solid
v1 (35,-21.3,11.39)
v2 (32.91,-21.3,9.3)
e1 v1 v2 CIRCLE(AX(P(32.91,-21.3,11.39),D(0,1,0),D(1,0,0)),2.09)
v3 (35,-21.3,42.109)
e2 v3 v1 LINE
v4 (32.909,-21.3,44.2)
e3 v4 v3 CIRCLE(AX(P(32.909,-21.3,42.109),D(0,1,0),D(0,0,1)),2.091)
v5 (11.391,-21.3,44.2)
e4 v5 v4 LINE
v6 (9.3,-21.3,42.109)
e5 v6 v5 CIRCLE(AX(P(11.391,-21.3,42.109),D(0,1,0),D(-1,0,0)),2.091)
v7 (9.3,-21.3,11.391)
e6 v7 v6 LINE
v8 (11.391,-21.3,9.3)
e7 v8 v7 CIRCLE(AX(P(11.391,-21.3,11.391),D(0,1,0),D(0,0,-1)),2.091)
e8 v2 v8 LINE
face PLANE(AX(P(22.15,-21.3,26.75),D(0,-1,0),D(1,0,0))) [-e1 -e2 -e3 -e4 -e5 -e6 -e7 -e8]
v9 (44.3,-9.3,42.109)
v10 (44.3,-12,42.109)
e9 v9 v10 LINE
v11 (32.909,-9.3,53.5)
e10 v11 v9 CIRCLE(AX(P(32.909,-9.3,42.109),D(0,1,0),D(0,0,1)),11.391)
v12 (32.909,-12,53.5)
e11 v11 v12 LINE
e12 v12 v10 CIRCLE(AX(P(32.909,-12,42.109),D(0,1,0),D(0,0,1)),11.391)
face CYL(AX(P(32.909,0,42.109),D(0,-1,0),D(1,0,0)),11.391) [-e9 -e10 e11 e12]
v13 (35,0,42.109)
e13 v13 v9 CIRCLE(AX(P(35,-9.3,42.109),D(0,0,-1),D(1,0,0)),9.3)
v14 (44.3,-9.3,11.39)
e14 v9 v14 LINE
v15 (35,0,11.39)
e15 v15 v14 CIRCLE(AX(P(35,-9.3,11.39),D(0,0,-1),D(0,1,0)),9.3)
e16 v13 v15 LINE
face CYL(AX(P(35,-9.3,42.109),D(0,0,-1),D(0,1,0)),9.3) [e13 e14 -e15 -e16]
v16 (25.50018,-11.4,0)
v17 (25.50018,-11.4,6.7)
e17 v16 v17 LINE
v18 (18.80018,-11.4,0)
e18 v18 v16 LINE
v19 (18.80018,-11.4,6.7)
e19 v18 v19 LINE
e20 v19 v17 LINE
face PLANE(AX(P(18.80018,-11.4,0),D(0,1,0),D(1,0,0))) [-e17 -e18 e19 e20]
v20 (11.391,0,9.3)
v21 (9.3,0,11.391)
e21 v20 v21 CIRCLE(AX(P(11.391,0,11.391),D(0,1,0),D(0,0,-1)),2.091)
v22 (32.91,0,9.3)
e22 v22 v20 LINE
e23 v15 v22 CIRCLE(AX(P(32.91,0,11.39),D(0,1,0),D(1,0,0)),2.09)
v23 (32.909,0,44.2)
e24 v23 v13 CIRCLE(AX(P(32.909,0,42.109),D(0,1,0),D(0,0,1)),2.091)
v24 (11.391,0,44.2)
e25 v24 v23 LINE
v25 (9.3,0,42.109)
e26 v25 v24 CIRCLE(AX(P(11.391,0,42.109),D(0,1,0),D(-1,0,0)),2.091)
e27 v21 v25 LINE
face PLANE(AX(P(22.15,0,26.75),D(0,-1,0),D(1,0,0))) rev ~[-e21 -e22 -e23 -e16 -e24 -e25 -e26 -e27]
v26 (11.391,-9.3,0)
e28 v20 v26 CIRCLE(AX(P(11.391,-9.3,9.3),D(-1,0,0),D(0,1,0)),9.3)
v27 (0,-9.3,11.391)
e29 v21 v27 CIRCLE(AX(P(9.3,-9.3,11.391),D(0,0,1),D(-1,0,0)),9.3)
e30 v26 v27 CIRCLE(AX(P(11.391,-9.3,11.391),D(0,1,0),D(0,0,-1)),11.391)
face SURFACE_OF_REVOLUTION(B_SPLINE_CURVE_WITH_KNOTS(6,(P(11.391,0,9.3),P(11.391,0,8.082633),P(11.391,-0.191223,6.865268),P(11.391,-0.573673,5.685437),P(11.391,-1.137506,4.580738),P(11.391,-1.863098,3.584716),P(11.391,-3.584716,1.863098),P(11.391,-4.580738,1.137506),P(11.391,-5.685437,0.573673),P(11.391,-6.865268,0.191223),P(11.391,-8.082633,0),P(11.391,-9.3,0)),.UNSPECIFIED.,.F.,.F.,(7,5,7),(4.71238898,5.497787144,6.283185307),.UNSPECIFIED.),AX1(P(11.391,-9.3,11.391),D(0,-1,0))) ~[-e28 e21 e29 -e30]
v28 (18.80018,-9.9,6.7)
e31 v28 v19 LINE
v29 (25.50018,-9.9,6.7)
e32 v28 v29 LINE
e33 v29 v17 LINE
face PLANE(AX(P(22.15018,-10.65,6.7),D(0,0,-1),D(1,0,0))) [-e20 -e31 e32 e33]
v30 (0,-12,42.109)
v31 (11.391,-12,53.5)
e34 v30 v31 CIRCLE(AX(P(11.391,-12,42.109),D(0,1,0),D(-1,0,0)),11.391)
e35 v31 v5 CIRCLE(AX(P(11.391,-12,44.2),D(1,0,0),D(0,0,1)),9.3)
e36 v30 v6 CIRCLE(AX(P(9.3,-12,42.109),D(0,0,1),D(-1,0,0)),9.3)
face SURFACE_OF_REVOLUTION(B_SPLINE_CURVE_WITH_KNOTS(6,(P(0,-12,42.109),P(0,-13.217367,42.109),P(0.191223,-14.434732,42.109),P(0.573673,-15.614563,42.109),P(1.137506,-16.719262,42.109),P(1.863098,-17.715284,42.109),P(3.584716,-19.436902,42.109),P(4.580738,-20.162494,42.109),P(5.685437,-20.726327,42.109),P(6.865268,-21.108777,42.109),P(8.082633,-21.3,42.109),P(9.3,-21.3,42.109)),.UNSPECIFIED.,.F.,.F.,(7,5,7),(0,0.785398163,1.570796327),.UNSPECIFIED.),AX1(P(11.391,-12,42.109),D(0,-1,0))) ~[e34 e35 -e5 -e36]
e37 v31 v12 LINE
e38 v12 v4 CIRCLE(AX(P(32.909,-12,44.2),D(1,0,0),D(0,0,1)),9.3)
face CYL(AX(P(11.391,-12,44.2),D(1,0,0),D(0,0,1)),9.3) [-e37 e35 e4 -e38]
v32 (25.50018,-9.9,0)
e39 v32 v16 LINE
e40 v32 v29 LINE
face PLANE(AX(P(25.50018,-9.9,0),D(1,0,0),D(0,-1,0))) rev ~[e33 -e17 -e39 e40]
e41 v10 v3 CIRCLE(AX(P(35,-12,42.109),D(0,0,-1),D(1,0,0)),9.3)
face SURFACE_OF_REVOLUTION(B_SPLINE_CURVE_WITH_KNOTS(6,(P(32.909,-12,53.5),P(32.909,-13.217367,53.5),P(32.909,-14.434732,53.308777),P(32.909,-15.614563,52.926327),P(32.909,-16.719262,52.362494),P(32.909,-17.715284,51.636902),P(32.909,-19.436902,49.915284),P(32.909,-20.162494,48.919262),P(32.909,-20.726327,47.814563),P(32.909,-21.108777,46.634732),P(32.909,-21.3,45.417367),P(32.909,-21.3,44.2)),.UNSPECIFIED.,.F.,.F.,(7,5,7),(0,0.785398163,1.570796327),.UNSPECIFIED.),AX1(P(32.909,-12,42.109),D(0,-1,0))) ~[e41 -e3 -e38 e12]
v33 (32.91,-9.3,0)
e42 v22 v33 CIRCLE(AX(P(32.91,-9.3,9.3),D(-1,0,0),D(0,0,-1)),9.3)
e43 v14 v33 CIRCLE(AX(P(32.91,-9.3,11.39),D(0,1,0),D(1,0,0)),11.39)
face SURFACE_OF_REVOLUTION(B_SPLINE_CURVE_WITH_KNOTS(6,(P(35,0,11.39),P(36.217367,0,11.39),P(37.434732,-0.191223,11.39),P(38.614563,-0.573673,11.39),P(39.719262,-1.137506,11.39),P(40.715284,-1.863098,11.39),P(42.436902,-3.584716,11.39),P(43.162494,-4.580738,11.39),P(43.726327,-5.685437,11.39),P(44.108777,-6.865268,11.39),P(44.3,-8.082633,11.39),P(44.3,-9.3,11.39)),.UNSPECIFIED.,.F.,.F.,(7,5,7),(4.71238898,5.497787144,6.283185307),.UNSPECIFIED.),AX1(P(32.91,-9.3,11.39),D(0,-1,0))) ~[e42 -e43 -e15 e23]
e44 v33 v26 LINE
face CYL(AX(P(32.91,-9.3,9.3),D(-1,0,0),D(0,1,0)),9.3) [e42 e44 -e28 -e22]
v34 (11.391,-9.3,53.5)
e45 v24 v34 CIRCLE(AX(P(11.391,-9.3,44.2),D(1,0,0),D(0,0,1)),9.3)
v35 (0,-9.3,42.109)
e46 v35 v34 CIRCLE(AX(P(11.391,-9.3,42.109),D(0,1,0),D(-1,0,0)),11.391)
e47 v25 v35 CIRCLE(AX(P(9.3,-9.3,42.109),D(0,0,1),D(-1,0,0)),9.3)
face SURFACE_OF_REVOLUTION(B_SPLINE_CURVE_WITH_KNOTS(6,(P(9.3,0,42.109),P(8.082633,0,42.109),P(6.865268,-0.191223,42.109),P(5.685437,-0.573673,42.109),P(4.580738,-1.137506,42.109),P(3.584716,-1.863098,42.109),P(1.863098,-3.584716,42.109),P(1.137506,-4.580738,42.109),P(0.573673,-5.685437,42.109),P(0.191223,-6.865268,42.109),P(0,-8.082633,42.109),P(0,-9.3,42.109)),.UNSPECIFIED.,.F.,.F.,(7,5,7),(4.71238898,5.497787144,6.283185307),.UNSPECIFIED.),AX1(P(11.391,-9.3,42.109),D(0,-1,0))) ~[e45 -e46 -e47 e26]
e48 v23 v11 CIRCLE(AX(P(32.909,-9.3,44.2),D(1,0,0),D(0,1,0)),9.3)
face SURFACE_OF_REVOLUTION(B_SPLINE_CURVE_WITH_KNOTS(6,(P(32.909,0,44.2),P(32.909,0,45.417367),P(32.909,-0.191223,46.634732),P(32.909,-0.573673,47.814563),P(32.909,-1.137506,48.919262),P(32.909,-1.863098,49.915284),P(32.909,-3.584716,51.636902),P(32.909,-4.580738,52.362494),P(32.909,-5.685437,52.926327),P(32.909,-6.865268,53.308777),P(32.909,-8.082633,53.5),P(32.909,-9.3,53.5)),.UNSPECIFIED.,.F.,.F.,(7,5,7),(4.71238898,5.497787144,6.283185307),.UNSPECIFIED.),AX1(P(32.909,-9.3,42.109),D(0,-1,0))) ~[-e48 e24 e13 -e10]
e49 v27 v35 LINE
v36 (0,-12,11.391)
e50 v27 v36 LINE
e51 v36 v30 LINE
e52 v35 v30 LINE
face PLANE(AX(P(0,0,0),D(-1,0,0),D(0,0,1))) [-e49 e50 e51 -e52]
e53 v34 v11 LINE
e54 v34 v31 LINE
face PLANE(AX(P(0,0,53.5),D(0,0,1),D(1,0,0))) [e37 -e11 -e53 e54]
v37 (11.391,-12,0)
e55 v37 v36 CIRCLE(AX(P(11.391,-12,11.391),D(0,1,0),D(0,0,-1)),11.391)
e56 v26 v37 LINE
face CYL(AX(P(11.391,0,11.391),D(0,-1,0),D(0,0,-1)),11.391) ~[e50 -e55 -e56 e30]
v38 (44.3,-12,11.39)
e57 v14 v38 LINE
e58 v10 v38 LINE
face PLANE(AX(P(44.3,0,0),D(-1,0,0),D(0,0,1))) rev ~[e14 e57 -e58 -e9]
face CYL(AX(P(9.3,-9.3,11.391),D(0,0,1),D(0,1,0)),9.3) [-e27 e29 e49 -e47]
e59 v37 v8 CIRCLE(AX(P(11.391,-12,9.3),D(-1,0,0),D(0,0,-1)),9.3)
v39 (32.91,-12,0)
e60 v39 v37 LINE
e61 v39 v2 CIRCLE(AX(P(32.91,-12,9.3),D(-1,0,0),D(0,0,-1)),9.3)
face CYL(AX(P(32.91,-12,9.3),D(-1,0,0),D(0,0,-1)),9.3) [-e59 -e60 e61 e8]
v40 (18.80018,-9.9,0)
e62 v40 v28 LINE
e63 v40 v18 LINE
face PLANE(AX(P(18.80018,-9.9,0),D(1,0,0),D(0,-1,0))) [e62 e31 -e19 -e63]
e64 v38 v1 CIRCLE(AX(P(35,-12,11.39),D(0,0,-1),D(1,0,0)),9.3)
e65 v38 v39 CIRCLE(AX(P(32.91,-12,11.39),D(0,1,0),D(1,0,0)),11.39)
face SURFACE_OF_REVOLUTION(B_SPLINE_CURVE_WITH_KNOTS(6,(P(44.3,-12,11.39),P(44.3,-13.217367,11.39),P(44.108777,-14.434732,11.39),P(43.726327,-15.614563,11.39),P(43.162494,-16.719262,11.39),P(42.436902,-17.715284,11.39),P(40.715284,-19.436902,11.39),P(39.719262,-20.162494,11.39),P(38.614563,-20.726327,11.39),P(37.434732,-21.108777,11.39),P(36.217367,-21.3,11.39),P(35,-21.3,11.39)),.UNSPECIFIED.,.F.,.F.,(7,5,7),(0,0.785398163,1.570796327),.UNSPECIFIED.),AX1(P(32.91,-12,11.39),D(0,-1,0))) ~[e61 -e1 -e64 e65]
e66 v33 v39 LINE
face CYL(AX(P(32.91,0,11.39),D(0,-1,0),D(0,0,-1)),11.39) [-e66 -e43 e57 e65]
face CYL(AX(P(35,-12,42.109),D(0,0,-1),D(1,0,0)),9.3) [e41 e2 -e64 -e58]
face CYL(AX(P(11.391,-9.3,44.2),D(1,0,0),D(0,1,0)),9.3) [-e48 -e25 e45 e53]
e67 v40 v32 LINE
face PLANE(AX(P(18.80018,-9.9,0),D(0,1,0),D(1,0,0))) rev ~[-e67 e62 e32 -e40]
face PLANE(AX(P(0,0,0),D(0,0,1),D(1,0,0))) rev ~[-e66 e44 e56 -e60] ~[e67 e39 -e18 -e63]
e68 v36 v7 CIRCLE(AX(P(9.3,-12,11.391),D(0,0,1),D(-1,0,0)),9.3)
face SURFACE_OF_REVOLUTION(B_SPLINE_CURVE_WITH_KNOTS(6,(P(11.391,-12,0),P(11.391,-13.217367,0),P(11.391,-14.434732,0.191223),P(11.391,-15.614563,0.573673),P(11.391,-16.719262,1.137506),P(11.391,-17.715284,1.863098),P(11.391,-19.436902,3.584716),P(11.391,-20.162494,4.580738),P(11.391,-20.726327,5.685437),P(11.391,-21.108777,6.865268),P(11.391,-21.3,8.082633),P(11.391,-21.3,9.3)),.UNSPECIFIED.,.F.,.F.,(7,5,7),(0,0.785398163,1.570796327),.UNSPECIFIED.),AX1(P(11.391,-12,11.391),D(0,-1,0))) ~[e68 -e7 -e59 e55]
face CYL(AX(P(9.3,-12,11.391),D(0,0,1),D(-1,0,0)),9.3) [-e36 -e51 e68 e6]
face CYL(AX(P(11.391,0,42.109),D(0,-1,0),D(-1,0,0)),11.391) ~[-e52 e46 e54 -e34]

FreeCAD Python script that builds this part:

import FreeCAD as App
import Part
import Sketcher


def edges_at(feature, points):
    """Names of the edges that pass closest to the given points."""
    edges = feature.Shape.Edges
    near = lambda p: min(range(len(edges)), key=lambda i: edges[i].distToShape(Part.Vertex(*p))[0])
    return sorted({f"Edge{near(p) + 1}" for p in points})


def add_polygon(sketch, points):
    """Adds a closed chain of lines whose ends are joined by coincident constraints."""
    first, n = sketch.GeometryCount, len(points)
    for a, b in zip(points, points[1:] + points[:1]):
        sketch.addGeometry(Part.LineSegment(App.Vector(*a, 0), App.Vector(*b, 0)), False)
    for i in range(n):
        sketch.addConstraint(Sketcher.Constraint("Coincident", first + i, 2, first + (i + 1) % n, 1))

doc = App.newDocument("Part")
body = doc.addObject("PartDesign::Body", "Body")

# Sketch on XZ plane
sketch1 = body.newObject("Sketcher::SketchObject", "Sketch")
sketch1.AttachmentSupport = (doc.getObject("XZ_Plane"), [""])
sketch1.MapMode = "FlatFace"
add_polygon(sketch1, [(0, 54), (0, 0), (44, 0), (44, 54)])  # lines 0-3
sketch1.addConstraint([
    Sketcher.Constraint("Vertical", 0),
    Sketcher.Constraint("Horizontal", 1),
    Sketcher.Constraint("Vertical", 2),
    Sketcher.Constraint("Horizontal", 3),
    Sketcher.Constraint("Coincident", 0, 2, -1, 1),
    Sketcher.Constraint("DistanceX", 1, 1, 1, 2, 44.3),
    Sketcher.Constraint("DistanceY", 0, 2, 0, 1, 53.5),
])
pad1 = body.newObject("PartDesign::Pad", "Pad")
pad1.Profile = sketch1
pad1.Length = 21.3
doc.recompute()

fillet = body.newObject("PartDesign::Fillet", "Fillet")
fillet.Base = (pad1, edges_at(pad1, [(44.3, -10.65, 0)]))
fillet.Radius = 11.39
doc.recompute()

fillet2 = body.newObject("PartDesign::Fillet", "Fillet001")
fillet2.Base = (fillet, edges_at(fillet, [(0, -10.65, 0)]))
fillet2.Radius = 11.391
doc.recompute()

fillet3 = body.newObject("PartDesign::Fillet", "Fillet002")
fillet3.Base = (fillet2, edges_at(fillet2, [(44.3, -10.65, 53.5), (0, -10.65, 53.5)]))
fillet3.Radius = 11.391
doc.recompute()

fillet4 = body.newObject("PartDesign::Fillet", "Fillet003")
fillet4.Base = (fillet3, edges_at(fillet3, [(3.336, -21.3, 50.164), (3.336, 0, 50.164)]))
fillet4.Radius = 9.3

# Sketch on XY plane
sketch2 = body.newObject("Sketcher::SketchObject", "Sketch001")
sketch2.AttachmentSupport = (doc.getObject("XY_Plane"), [""])
sketch2.MapMode = "FlatFace"
add_polygon(sketch2, [(18.8, -11.4), (18.8, -9.9), (25.5, -9.9), (25.5, -11.4)])  # lines 0-3
sketch2.addConstraint([
    Sketcher.Constraint("Vertical", 0),
    Sketcher.Constraint("Horizontal", 1),
    Sketcher.Constraint("Vertical", 2),
    Sketcher.Constraint("Horizontal", 3),
    Sketcher.Constraint("DistanceX", 1, 1, 1, 2, 6.7),
    Sketcher.Constraint("DistanceY", 0, 1, 0, 2, 1.5),
    Sketcher.Constraint("DistanceY", 0, 2, -1, 1, 9.9),
    Sketcher.Constraint("DistanceX", -1, 1, 0, 2, 18.80018),
])
pocket1 = body.newObject("PartDesign::Pocket", "Pocket")
pocket1.Profile = sketch2
pocket1.Length = 6.7
pocket1.Reversed = True

doc.recompute()
